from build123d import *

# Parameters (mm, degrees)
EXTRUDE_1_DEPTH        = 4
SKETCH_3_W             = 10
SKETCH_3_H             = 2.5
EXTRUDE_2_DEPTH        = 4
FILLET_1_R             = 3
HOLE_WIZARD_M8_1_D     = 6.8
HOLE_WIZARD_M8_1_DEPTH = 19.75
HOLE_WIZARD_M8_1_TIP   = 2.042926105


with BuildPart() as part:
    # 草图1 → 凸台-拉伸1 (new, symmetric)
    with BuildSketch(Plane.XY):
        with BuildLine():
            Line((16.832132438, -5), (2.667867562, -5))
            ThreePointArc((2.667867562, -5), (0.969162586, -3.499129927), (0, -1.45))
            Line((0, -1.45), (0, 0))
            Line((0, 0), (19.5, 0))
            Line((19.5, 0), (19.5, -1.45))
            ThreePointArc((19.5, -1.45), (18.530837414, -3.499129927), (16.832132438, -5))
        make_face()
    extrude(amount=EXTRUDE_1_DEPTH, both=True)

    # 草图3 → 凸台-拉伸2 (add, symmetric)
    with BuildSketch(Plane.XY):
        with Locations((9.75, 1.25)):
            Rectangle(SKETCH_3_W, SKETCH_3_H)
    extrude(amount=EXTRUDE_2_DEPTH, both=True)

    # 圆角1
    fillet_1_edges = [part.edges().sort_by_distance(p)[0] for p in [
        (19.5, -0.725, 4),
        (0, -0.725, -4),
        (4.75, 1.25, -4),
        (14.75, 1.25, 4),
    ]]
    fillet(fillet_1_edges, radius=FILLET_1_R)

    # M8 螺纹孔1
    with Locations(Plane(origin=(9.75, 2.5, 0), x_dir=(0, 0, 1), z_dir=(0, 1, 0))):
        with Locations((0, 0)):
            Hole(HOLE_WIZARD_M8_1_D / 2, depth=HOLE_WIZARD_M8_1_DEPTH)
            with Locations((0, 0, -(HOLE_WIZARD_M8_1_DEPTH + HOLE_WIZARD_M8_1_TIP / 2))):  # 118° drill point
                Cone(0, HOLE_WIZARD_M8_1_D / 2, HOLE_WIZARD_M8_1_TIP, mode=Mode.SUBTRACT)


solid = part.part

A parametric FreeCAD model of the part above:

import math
import FreeCAD as App
import Part
import Sketcher
Q = App.Units.Quantity


def edges_at(feature, points):
    """Names of the edges that pass closest to the given points."""
    edges = feature.Shape.Edges
    near = lambda p: min(range(len(edges)), key=lambda i: edges[i].distToShape(Part.Vertex(*p))[0])
    return sorted({f"Edge{near(p) + 1}" for p in points})

doc = App.newDocument("Part")
params = doc.addObject("Spreadsheet::Sheet", "Params")
for row, (alias, value) in enumerate([
    ("sketch1_width", "19.5 mm"),
    ("sketch1_height", "1.45 mm"),
    ("pad1_length", "8 mm"),
    ("sketch2_width", "10 mm"),
    ("sketch2_height", "2.5 mm"),
    ("pad2_length", "8 mm"),
    ("fillet_radius", "3 mm"),
    ("sketch3_diameter", "6.8 mm"),
    ("hole_diameter", "6.8 mm"),
    ("hole_depth", "19.75 mm"),
], start=1):
    params.set(f"A{row}", alias)
    params.set(f"B{row}", "=" + value)
    params.setAlias(f"B{row}", alias)

body = doc.addObject("PartDesign::Body", "Body")

# Sketch on XY plane
sketch1 = body.newObject("Sketcher::SketchObject", "Sketch")
sketch1.AttachmentSupport = (doc.getObject("XY_Plane"), [""])
sketch1.MapMode = "FlatFace"
sketch1.addGeometry([
    Part.LineSegment(App.Vector(2.7, -5, 0), App.Vector(16.8, -5, 0)),  # 0
    Part.ArcOfCircle(Part.Circle(App.Vector(14, -0.1, 0), App.Vector(0, 0, 1), 5.6), math.radians(-60), math.radians(-14)),  # 1
    Part.LineSegment(App.Vector(19.5, -1.4, 0), App.Vector(19.5, 0, 0)),  # 2
    Part.LineSegment(App.Vector(19.5, 0, 0), App.Vector(0, 0, 0)),  # 3
    Part.LineSegment(App.Vector(0, 0, 0), App.Vector(0, -1.4, 0)),  # 4
    Part.ArcOfCircle(Part.Circle(App.Vector(5.5, -0.1, 0), App.Vector(0, 0, 1), 5.6), math.radians(-166), math.radians(-120)),  # 5
], False)
sketch1.addConstraint([
    Sketcher.Constraint("Coincident", 0, 2, 1, 1),
    Sketcher.Constraint("Coincident", 1, 2, 2, 1),
    Sketcher.Constraint("Coincident", 2, 2, 3, 1),
    Sketcher.Constraint("Coincident", 3, 2, 4, 1),
    Sketcher.Constraint("Coincident", 4, 2, 5, 1),
    Sketcher.Constraint("Coincident", 5, 2, 0, 1),
    Sketcher.Constraint("Horizontal", 0),
    Sketcher.Constraint("Vertical", 2),
    Sketcher.Constraint("Horizontal", 3),
    Sketcher.Constraint("Vertical", 4),
    Sketcher.Constraint("Coincident", 3, 2, -1, 1),
    Sketcher.Constraint("Equal", 1, 5),
    Sketcher.Constraint("Horizontal", 1, 3, 5, 3),
    Sketcher.Constraint("Horizontal", 1, 2, 4, 2),
    Sketcher.Constraint("DistanceX", 3, 2, 3, 1, Q("19.5 mm")),
    Sketcher.Constraint("DistanceY", 0, 2, -1, 1, Q("5 mm")),
    Sketcher.Constraint("DistanceY", 2, 1, 2, 2, Q("1.45 mm")),
    Sketcher.Constraint("Radius", 1, Q("5.630358 mm")),
    Sketcher.Constraint("DistanceX", 0, 1, 0, 2, Q("14.164265 mm")),
])
sketch1.setExpression("Constraints[14]", "Params.sketch1_width")
sketch1.setExpression("Constraints[16]", "Params.sketch1_height")
pad1 = body.newObject("PartDesign::Pad", "Pad")
pad1.Profile = sketch1
pad1.setExpression("Length", "Params.pad1_length")
pad1.Midplane = True

# Sketch on XY plane
sketch2 = body.newObject("Sketcher::SketchObject", "Sketch001")
sketch2.AttachmentSupport = (doc.getObject("XY_Plane"), [""])
sketch2.MapMode = "FlatFace"
sketch2.addGeometry([
    Part.LineSegment(App.Vector(4.8, 2.5, 0), App.Vector(4.8, 0, 0)),
    Part.LineSegment(App.Vector(4.8, 0, 0), App.Vector(14.8, 0, 0)),
    Part.LineSegment(App.Vector(14.8, 0, 0), App.Vector(14.8, 2.5, 0)),
    Part.LineSegment(App.Vector(14.8, 2.5, 0), App.Vector(4.8, 2.5, 0)),
], False)
sketch2.addConstraint([
    Sketcher.Constraint("Coincident", 0, 2, 1, 1),
    Sketcher.Constraint("Coincident", 1, 2, 2, 1),
    Sketcher.Constraint("Coincident", 2, 2, 3, 1),
    Sketcher.Constraint("Coincident", 3, 2, 0, 1),
    Sketcher.Constraint("Vertical", 0),
    Sketcher.Constraint("Horizontal", 1),
    Sketcher.Constraint("Vertical", 2),
    Sketcher.Constraint("Horizontal", 3),
    Sketcher.Constraint("PointOnObject", 0, 2, -1),
    Sketcher.Constraint("DistanceX", 1, 1, 1, 2, Q("10 mm")),
    Sketcher.Constraint("DistanceY", 0, 2, 0, 1, Q("2.5 mm")),
    Sketcher.Constraint("DistanceX", -1, 1, 0, 2, Q("4.75 mm")),
])
sketch2.setExpression("Constraints[9]", "Params.sketch2_width")
sketch2.setExpression("Constraints[10]", "Params.sketch2_height")
pad2 = body.newObject("PartDesign::Pad", "Pad001")
pad2.Profile = sketch2
pad2.setExpression("Length", "Params.pad2_length")
pad2.Midplane = True
doc.recompute()

fillet = body.newObject("PartDesign::Fillet", "Fillet")
fillet.Base = (pad2, edges_at(pad2, [
    (19.5, -0.725, 4),
    (0, -0.725, -4),
    (4.75, 1.25, -4),
    (14.75, 1.25, 4),
]))
fillet.setExpression("Radius", "Params.fillet_radius")

# Sketch on XZ plane
sketch3 = body.newObject("Sketcher::SketchObject", "Sketch002")
sketch3.AttachmentSupport = (doc.getObject("XZ_Plane"), [""])
sketch3.MapMode = "FlatFace"
sketch3.AttachmentOffset = App.Placement(App.Vector(0, 0, -2.5), App.Rotation())
sketch3.addGeometry(Part.Circle(App.Vector(9.8, 0, 0), App.Vector(0, 0, 1), 3.4), False)
sketch3.addConstraint([
    Sketcher.Constraint("PointOnObject", 0, 3, -1),
    Sketcher.Constraint("Diameter", 0, Q("6.8 mm")),
    Sketcher.Constraint("DistanceX", -1, 1, 0, 3, Q("9.75 mm")),
])
sketch3.setExpression("Constraints[1]", "Params.sketch3_diameter")
doc.recompute()
hole = body.newObject("PartDesign::Hole", "Hole")
hole.Profile = sketch3
hole.ThreadType = "None"
hole.setExpression("Diameter", "Params.hole_diameter")
hole.DepthType = "Dimension"
hole.setExpression("Depth", "Params.hole_depth")
hole.DrillPoint = "Angled"
hole.DrillPointAngle = 118
hole.Reversed = True

doc.recompute()
